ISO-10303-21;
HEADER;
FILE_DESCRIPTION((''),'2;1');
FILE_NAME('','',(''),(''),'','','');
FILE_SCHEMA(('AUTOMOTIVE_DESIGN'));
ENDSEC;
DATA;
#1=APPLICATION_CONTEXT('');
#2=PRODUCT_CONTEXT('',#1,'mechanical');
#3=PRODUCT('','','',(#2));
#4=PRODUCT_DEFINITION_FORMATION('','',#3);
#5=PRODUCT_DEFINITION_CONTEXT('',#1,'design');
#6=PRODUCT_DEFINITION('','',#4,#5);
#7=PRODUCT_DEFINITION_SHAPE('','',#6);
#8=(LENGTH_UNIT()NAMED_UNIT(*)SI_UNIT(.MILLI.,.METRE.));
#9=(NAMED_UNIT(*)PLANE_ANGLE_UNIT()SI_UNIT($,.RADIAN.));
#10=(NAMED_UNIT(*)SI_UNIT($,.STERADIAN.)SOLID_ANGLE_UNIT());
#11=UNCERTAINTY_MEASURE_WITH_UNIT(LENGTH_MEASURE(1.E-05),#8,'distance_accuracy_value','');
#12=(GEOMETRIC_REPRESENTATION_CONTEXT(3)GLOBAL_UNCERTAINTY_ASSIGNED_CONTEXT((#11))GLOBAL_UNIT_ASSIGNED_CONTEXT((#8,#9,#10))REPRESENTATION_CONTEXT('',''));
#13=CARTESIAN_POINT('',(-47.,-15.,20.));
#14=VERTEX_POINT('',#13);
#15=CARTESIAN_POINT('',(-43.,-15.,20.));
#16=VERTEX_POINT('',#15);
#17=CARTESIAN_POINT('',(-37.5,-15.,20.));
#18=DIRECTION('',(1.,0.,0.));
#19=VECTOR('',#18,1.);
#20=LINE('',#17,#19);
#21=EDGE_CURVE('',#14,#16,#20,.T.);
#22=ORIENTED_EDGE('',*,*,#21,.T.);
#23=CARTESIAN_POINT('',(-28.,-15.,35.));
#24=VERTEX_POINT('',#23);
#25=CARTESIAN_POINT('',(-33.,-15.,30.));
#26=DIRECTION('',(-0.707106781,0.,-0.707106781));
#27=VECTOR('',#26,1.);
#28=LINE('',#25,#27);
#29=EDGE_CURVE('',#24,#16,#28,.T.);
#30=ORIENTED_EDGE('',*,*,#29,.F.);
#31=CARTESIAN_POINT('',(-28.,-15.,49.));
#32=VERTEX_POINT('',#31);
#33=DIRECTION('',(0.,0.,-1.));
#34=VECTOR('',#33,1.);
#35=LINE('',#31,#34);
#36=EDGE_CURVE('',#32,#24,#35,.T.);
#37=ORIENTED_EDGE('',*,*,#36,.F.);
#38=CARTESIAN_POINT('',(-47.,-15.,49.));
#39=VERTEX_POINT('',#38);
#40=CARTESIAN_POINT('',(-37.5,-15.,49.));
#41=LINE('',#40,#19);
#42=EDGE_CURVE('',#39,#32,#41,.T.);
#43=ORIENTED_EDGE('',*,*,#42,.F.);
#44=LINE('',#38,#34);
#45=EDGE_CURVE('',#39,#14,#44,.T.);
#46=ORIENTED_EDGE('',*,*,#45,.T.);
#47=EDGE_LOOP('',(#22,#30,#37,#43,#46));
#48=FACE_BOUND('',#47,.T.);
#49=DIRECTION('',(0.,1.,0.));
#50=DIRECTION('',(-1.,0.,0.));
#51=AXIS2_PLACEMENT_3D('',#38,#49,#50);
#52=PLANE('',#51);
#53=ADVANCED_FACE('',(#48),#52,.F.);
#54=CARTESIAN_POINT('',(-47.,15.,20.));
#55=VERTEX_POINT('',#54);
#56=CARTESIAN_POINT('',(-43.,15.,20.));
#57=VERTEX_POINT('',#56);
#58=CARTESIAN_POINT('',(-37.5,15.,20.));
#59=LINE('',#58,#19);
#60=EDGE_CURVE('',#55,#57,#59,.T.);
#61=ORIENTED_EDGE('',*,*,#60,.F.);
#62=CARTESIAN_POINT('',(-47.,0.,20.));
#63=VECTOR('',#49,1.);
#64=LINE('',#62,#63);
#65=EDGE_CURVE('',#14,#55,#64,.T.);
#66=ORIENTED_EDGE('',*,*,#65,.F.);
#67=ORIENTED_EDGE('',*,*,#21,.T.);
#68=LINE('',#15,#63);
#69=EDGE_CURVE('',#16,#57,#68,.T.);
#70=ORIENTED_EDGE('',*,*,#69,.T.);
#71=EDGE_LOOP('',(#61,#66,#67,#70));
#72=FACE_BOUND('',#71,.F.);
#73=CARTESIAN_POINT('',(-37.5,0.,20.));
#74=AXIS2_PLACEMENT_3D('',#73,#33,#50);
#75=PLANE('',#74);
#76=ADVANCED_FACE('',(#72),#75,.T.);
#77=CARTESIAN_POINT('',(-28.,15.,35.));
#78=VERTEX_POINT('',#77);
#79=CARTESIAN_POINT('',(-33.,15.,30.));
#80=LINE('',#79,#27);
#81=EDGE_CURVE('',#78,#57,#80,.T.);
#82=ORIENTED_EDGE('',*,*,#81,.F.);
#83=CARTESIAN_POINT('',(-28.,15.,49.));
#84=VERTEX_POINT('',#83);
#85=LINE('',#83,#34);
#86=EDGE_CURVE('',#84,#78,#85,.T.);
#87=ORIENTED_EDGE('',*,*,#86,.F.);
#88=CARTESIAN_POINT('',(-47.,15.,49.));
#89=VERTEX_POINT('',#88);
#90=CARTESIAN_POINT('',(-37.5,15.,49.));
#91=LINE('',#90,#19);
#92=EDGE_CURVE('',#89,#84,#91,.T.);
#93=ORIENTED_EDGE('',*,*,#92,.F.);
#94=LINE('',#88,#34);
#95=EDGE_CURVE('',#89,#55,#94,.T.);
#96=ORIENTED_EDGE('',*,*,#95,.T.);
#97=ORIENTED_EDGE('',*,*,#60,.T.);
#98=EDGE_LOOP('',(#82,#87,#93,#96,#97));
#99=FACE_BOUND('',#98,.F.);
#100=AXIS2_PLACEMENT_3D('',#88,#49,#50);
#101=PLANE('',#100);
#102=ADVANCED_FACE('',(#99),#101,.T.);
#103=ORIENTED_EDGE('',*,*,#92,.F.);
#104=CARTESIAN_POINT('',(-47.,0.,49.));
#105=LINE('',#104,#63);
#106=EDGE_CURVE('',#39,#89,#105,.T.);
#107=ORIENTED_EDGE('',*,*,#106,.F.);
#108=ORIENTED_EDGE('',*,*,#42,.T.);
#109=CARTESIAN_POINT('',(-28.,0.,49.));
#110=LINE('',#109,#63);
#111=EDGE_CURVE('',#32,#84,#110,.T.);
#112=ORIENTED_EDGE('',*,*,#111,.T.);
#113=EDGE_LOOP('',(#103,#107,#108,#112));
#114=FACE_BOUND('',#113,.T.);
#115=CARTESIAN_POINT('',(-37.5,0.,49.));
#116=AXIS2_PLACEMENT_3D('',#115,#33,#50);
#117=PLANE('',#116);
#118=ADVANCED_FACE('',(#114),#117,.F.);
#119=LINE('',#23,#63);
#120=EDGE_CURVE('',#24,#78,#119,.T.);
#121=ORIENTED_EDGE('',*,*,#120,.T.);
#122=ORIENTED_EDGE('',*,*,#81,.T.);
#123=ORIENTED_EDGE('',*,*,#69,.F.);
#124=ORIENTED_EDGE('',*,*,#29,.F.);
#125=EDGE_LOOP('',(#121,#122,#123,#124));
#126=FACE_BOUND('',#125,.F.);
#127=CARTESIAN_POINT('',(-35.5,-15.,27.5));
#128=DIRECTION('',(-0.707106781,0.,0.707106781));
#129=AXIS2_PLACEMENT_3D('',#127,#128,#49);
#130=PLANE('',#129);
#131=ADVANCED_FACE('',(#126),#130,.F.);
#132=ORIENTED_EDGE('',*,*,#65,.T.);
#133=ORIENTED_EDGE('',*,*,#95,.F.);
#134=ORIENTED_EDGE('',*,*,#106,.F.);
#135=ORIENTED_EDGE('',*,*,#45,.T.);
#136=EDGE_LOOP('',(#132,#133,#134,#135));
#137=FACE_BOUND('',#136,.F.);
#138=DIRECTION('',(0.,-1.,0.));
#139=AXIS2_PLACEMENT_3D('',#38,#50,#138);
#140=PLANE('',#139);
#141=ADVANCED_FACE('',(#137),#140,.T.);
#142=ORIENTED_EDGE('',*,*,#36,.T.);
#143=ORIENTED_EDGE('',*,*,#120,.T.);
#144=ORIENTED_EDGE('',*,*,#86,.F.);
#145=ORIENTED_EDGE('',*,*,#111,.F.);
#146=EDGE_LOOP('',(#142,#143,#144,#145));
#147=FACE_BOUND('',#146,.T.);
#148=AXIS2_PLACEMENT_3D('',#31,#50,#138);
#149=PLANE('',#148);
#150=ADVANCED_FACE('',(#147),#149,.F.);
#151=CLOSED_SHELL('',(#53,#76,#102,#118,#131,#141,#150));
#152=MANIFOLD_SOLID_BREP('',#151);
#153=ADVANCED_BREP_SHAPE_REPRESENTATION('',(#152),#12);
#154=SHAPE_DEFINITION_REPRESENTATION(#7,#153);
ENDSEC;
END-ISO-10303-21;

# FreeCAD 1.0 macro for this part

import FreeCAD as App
import Part
import Sketcher

V = App.Vector


def edges_at(feature, points):
    """Names of the edges that pass closest to the given points."""
    edges = feature.Shape.Edges
    near = lambda p: min(range(len(edges)), key=lambda i: edges[i].distToShape(Part.Vertex(*p))[0])
    return sorted({f"Edge{near(p) + 1}" for p in points})


def add_polygon(sketch, points):
    """Adds a closed chain of lines whose ends are joined by coincident constraints."""
    first, n = sketch.GeometryCount, len(points)
    for a, b in zip(points, points[1:] + points[:1]):
        sketch.addGeometry(Part.LineSegment(App.Vector(*a, 0), App.Vector(*b, 0)), False)
    for i in range(n):
        sketch.addConstraint(Sketcher.Constraint("Coincident", first + i, 2, first + (i + 1) % n, 1))

doc = App.newDocument("Part")
params = doc.addObject("Spreadsheet::Sheet", "Params")
for row, (alias, value) in enumerate([
    ("sketch1_width", "19 mm"),
    ("sketch1_height", "30 mm"),
    ("pad1_length", "29 mm"),
    ("chamfer_size", "15 mm"),
], start=1):
    params.set(f"A{row}", alias)
    params.set(f"B{row}", "=" + value)
    params.setAlias(f"B{row}", alias)

body = doc.addObject("PartDesign::Body", "Body")

# Sketch on XY plane
sketch1 = body.newObject("Sketcher::SketchObject", "Sketch")
sketch1.AttachmentSupport = (doc.getObject("XY_Plane"), [""])
sketch1.MapMode = "FlatFace"
sketch1.AttachmentOffset = App.Placement(V(0, 0, -15), App.Rotation())
add_polygon(sketch1, [(-47, 15), (-47, -15), (-28, -15), (-28, 15)])  # lines 0-3
sketch1.addConstraint([
    Sketcher.Constraint("Vertical", 0),
    Sketcher.Constraint("Horizontal", 1),
    Sketcher.Constraint("Vertical", 2),
    Sketcher.Constraint("Horizontal", 3),
    Sketcher.Constraint("DistanceX", 1, 1, 1, 2, 19.0),
    Sketcher.Constraint("DistanceY", 0, 2, 0, 1, 30.0),
    Sketcher.Constraint("DistanceX", 0, 2, -1, 1, 47.0),
    Sketcher.Constraint("DistanceY", 0, 2, -1, 1, 15.0),
])
sketch1.setExpression("Constraints[8]", "Params.sketch1_width")
sketch1.setExpression("Constraints[9]", "Params.sketch1_height")
pad1 = body.newObject("PartDesign::Pad", "Pad")
pad1.Profile = sketch1
pad1.setExpression("Length", "Params.pad1_length")
doc.recompute()

chamfer = body.newObject("PartDesign::Chamfer", "Chamfer")
chamfer.Base = (pad1, edges_at(pad1, [(-28, 0, 14)]))
chamfer.setExpression("Size", "Params.chamfer_size")
body2 = doc.addObject("PartDesign::Body", "Body001")
doc.recompute()

body.Placement = App.Placement(V(0, 0, 6), App.Rotation(V(0, 0, 1), 0))
boolean = body2.newObject("PartDesign::Boolean", "Boolean")
boolean.Type = "Fuse"
boolean.addObjects([body])
body3 = doc.addObject("PartDesign::Body", "Body002")
doc.recompute()

mirroring = doc.addObject("Part::Mirroring", "Mirroring")
mirroring.Source = body2
mirroring.Base = V(0, 0, 20)
mirroring.Normal = V(0, 0, 1)
body3.BaseFeature = mirroring
doc.recompute()
body2.Visibility = False
mirroring.Visibility = False

doc.recompute()
